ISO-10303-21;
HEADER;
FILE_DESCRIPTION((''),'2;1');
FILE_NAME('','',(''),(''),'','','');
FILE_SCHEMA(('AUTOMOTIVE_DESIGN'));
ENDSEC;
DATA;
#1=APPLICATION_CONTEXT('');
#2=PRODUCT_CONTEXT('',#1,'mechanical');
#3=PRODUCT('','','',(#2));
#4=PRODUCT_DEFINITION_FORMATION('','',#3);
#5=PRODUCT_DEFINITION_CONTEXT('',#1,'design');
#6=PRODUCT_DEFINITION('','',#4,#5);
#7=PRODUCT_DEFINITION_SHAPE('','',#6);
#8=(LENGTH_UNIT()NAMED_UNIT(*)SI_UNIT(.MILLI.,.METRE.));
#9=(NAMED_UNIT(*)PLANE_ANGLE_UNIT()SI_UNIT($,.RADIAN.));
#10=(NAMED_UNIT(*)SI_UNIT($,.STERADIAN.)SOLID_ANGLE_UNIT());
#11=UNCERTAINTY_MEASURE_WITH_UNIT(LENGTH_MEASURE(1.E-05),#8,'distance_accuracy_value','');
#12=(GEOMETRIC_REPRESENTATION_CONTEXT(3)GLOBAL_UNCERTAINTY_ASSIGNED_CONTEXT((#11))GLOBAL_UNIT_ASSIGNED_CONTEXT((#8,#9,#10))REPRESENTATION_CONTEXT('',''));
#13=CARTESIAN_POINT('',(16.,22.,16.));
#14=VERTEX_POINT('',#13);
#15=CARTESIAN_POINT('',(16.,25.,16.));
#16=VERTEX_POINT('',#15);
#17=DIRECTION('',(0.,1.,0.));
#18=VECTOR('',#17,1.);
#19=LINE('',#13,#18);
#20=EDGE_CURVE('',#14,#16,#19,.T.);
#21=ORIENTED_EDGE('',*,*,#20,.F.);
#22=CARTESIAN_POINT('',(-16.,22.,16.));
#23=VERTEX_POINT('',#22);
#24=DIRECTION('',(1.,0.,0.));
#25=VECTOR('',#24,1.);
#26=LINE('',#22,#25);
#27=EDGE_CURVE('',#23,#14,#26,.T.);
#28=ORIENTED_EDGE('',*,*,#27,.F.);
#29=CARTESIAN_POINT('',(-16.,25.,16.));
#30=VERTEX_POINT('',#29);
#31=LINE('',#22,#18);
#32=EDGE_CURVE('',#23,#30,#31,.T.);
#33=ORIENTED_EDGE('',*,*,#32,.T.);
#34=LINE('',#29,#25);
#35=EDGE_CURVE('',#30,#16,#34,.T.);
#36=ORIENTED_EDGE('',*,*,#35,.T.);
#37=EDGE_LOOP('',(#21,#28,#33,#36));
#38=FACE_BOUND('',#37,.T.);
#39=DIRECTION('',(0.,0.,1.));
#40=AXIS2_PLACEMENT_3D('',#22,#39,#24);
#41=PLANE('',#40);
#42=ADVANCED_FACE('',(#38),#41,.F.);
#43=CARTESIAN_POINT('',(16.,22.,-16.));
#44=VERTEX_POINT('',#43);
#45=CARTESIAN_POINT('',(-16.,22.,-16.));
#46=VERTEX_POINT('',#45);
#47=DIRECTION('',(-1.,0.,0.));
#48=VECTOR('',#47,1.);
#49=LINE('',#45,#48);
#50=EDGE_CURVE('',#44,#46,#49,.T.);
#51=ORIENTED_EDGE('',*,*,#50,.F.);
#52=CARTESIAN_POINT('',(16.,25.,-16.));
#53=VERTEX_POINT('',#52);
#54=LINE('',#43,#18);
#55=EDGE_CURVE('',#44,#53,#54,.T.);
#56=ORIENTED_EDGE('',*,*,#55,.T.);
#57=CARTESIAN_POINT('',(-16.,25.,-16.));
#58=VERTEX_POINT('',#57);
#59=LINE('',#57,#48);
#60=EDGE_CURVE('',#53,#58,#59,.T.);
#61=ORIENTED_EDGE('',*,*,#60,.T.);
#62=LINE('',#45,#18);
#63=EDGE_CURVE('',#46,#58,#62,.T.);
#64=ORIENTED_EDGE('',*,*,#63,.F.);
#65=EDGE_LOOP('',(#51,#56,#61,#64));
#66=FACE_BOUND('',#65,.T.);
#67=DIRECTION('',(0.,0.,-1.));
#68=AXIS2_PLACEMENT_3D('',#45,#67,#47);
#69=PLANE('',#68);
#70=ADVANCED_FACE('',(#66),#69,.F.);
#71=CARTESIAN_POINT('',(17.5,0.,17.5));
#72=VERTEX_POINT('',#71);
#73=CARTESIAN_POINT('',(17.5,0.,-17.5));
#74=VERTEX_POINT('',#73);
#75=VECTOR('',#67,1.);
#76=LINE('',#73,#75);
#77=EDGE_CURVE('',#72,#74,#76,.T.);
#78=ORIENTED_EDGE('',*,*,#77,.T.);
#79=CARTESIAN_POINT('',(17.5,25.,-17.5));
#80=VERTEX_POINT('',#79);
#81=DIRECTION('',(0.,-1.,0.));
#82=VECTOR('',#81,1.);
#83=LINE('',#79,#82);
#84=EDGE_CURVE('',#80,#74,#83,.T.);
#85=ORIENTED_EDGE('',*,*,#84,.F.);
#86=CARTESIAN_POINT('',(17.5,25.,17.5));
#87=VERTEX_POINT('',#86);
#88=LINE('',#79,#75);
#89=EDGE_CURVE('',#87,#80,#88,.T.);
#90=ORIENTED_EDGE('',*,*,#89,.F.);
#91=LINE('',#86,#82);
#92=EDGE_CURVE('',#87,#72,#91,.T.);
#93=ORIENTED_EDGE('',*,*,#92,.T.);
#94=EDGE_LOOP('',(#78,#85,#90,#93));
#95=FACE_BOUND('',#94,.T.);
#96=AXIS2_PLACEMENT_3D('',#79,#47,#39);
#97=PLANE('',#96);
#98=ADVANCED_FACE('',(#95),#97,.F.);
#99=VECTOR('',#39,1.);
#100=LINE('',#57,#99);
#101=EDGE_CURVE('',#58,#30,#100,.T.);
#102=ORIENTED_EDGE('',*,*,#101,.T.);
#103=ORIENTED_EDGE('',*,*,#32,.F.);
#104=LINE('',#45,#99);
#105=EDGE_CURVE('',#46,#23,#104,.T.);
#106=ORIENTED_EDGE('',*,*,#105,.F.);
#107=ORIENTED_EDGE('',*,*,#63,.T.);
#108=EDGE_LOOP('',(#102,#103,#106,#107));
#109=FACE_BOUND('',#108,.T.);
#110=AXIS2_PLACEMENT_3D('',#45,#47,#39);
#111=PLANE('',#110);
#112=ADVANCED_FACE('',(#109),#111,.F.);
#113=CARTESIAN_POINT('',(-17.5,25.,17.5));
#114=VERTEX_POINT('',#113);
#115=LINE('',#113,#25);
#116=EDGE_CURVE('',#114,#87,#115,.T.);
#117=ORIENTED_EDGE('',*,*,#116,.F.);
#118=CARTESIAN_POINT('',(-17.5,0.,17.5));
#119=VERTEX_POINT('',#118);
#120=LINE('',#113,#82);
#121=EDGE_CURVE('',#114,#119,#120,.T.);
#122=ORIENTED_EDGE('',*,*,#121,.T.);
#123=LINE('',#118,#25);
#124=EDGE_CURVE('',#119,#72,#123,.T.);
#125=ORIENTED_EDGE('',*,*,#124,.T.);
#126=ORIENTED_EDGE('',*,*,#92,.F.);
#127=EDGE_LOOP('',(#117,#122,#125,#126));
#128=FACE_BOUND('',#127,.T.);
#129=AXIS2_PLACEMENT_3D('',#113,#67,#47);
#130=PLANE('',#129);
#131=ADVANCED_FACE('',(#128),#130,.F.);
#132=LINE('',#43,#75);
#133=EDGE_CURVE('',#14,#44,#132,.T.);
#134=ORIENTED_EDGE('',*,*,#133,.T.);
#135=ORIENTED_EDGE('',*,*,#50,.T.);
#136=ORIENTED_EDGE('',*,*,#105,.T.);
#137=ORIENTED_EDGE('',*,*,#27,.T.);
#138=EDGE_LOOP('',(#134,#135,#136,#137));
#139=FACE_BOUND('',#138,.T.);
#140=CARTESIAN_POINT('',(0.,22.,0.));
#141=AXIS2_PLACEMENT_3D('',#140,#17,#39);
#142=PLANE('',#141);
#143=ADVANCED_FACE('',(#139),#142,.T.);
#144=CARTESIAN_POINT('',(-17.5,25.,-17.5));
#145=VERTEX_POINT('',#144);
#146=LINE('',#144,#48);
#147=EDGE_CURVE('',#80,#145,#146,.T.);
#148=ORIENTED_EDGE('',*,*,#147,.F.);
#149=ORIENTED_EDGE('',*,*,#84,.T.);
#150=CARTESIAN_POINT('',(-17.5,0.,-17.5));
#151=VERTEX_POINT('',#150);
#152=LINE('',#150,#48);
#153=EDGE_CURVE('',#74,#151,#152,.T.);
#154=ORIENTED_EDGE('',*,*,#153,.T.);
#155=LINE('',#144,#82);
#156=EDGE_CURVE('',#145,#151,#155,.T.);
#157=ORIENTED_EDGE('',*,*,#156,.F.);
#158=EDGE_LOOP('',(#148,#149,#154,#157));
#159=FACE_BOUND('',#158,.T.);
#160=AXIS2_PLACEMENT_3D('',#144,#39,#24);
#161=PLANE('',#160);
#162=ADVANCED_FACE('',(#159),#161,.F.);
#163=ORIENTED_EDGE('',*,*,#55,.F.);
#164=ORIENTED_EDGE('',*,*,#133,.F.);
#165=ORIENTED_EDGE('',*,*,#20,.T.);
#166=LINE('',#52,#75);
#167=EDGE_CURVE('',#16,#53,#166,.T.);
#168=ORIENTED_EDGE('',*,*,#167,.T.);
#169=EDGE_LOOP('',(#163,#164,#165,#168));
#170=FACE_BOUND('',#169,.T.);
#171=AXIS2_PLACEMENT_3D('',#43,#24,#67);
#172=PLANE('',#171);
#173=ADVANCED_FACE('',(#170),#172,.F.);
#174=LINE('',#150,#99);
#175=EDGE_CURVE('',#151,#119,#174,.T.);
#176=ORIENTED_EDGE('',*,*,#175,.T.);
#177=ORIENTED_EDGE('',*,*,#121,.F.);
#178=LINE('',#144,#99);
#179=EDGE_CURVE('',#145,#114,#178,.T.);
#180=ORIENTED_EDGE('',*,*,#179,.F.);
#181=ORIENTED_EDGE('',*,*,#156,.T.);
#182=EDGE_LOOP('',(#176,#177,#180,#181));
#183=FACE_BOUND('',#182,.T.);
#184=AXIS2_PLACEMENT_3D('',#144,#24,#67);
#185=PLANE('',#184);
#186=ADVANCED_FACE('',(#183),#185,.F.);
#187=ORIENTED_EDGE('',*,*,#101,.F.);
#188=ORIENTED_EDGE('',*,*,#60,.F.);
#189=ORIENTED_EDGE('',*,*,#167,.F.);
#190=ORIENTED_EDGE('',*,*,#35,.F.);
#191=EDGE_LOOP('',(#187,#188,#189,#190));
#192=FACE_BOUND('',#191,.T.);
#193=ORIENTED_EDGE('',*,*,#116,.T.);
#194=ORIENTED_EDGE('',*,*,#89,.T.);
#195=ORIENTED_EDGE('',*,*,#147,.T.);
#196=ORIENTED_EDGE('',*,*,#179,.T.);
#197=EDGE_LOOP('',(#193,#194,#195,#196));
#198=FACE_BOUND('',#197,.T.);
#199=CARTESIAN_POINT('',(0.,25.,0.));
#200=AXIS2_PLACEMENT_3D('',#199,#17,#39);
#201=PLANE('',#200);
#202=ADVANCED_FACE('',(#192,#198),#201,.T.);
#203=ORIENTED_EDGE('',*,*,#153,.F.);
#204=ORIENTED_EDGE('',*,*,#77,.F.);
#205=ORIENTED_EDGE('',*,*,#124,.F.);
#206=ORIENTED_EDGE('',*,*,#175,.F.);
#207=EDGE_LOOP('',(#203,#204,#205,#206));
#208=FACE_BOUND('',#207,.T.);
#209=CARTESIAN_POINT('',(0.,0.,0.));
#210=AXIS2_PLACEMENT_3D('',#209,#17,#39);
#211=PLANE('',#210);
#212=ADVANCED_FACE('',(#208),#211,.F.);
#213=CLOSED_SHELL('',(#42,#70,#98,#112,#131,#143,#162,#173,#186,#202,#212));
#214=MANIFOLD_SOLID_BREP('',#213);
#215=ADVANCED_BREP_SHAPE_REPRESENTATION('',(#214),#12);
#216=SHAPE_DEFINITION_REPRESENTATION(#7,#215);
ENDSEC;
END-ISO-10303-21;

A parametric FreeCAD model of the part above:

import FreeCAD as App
import Part
import Sketcher
Q = App.Units.Quantity


def add_polygon(sketch, points):
    """Adds a closed chain of lines whose ends are joined by coincident constraints."""
    first, n = sketch.GeometryCount, len(points)
    for a, b in zip(points, points[1:] + points[:1]):
        sketch.addGeometry(Part.LineSegment(App.Vector(*a, 0), App.Vector(*b, 0)), False)
    for i in range(n):
        sketch.addConstraint(Sketcher.Constraint("Coincident", first + i, 2, first + (i + 1) % n, 1))

doc = App.newDocument("Part")
params = doc.addObject("Spreadsheet::Sheet", "Params")
for row, (alias, value) in enumerate([
    ("sketch1_width", "35 mm"),
    ("pad1_length", "25 mm"),
    ("sketch2_width", "32 mm"),
    ("pocket1_length", "3 mm"),
], start=1):
    params.set(f"A{row}", alias)
    params.set(f"B{row}", "=" + value)
    params.setAlias(f"B{row}", alias)

body = doc.addObject("PartDesign::Body", "Body")

# Sketch on XZ plane
sketch1 = doc.addObject("Sketcher::SketchObject", "Sketch")
body.addObject(sketch1)
sketch1.AttachmentSupport = (doc.XZ_Plane, [""])
sketch1.MapMode = "FlatFace"
add_polygon(sketch1, [(-18, -18), (-18, 18), (18, 18), (18, -18)])  # lines 0-3
sketch1.addConstraint([
    Sketcher.Constraint("Vertical", 0),
    Sketcher.Constraint("Horizontal", 1),
    Sketcher.Constraint("Vertical", 2),
    Sketcher.Constraint("Horizontal", 3),
    Sketcher.Constraint("Symmetric", 0, 2, 2, 2, -1, 1),
    Sketcher.Constraint("Equal", 3, 0),
    Sketcher.Constraint("DistanceX", 1, 1, 1, 2, Q("35 mm")),
])
sketch1.setExpression("Constraints[10]", "Params.sketch1_width")
pad1 = doc.addObject("PartDesign::Pad", "Pad")
body.addObject(pad1)
pad1.Profile = sketch1
pad1.setExpression("Length", "Params.pad1_length")
pad1.Reversed = True

# Sketch on XZ plane
sketch2 = doc.addObject("Sketcher::SketchObject", "Sketch001")
body.addObject(sketch2)
sketch2.AttachmentSupport = (doc.XZ_Plane, [""])
sketch2.MapMode = "FlatFace"
sketch2.AttachmentOffset = App.Placement(App.Vector(0, 0, -25), App.Rotation())
add_polygon(sketch2, [(-16, -16), (-16, 16), (16, 16), (16, -16)])  # lines 0-3
sketch2.addConstraint([
    Sketcher.Constraint("Vertical", 0),
    Sketcher.Constraint("Horizontal", 1),
    Sketcher.Constraint("Vertical", 2),
    Sketcher.Constraint("Horizontal", 3),
    Sketcher.Constraint("Symmetric", 0, 2, 2, 2, -1, 1),
    Sketcher.Constraint("Equal", 3, 0),
    Sketcher.Constraint("DistanceX", 1, 1, 1, 2, Q("32 mm")),
])
sketch2.setExpression("Constraints[10]", "Params.sketch2_width")
pocket1 = doc.addObject("PartDesign::Pocket", "Pocket")
body.addObject(pocket1)
pocket1.Profile = sketch2
pocket1.setExpression("Length", "Params.pocket1_length")
pocket1.Reversed = True

doc.recompute()
